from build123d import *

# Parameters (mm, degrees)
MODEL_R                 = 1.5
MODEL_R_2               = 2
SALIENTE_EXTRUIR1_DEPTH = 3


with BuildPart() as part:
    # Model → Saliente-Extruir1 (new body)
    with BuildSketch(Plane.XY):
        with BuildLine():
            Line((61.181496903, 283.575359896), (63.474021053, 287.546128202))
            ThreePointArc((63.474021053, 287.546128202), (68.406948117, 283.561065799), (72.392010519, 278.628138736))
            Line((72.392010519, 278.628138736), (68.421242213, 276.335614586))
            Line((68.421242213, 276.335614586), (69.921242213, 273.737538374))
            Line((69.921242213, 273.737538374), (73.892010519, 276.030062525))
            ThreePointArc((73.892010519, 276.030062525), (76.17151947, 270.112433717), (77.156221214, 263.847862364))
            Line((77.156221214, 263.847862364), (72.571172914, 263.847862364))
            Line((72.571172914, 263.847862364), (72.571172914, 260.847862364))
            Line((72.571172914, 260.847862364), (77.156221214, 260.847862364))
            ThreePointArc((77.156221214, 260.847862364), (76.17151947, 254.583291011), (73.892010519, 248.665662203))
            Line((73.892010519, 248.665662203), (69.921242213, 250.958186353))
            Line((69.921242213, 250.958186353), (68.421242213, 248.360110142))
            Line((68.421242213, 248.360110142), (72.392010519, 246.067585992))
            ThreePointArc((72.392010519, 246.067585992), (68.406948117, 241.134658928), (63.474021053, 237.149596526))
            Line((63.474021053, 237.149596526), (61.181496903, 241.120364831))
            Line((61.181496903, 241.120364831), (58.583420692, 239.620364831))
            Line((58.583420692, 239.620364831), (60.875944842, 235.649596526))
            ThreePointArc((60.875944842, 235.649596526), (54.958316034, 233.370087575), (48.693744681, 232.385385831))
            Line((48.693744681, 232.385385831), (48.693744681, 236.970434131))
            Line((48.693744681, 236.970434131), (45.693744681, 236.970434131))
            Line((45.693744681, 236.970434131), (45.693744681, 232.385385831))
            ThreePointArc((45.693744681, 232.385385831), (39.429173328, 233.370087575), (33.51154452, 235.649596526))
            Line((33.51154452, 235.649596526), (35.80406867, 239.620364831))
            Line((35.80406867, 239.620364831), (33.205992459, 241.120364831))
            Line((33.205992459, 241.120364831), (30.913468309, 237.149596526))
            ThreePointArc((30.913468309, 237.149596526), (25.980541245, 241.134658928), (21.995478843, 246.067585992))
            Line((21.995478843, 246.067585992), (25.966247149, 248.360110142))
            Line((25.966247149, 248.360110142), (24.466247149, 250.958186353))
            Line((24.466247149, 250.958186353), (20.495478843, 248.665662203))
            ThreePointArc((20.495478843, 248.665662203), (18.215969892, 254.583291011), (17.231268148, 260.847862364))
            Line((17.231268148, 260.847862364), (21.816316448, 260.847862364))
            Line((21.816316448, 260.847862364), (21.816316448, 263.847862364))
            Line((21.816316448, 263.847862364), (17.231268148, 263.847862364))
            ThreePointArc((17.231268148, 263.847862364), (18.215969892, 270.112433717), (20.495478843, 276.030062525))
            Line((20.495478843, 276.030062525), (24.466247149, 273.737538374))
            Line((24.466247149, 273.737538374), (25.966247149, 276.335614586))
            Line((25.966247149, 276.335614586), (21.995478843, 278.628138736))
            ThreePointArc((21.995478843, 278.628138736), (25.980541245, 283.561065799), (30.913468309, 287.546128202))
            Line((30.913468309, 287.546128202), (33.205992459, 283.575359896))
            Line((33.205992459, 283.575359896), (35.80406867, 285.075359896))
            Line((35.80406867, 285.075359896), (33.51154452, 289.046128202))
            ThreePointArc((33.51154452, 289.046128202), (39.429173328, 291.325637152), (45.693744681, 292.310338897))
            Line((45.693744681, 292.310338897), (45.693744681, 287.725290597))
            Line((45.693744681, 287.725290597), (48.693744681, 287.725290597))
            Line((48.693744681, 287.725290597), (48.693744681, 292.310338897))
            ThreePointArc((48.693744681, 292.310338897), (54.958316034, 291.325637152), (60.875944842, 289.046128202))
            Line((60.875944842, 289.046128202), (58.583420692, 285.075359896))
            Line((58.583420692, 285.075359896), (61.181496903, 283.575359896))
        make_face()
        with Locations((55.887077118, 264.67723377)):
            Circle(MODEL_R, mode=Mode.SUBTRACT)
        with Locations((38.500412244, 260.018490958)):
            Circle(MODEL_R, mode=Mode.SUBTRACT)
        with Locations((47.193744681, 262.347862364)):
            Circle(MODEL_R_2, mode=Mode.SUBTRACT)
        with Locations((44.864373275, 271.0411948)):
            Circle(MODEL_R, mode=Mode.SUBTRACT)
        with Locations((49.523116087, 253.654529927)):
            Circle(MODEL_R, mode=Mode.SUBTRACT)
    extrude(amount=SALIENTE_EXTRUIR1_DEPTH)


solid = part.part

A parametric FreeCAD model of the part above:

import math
import FreeCAD as App
import Part
import Sketcher
Q = App.Units.Quantity

doc = App.newDocument("Part")
params = doc.addObject("Spreadsheet::Sheet", "Params")
for row, (alias, value) in enumerate([
    ("sketch1_diameter", "3 mm"),
    ("sketch1_diameter2", "4 mm"),
    ("sketch1_radius", "30 mm"),
    ("sketch1_width", "3 mm"),
    ("sketch1_length", "3 mm"),
    ("pad1_length", "3 mm"),
], start=1):
    params.set(f"A{row}", alias)
    params.set(f"B{row}", "=" + value)
    params.setAlias(f"B{row}", alias)

body = doc.addObject("PartDesign::Body", "Body")

# Sketch on XY plane
sketch1 = body.newObject("Sketcher::SketchObject", "Sketch")
sketch1.AttachmentSupport = (doc.getObject("XY_Plane"), [""])
sketch1.MapMode = "FlatFace"
sketch1.addGeometry([
    Part.LineSegment(App.Vector(63.5, 287.5, 0), App.Vector(61.2, 283.6, 0)),  # 0
    Part.LineSegment(App.Vector(61.2, 283.6, 0), App.Vector(58.6, 285.1, 0)),  # 1
    Part.LineSegment(App.Vector(58.6, 285.1, 0), App.Vector(60.9, 289, 0)),  # 2
    Part.ArcOfCircle(Part.Circle(App.Vector(47.2, 262.3, 0), App.Vector(0, 0, 1), 30), math.radians(63), math.radians(87)),  # 3
    Part.LineSegment(App.Vector(48.7, 292.3, 0), App.Vector(48.7, 287.7, 0)),  # 4
    Part.LineSegment(App.Vector(48.7, 287.7, 0), App.Vector(45.7, 287.7, 0)),  # 5
    Part.LineSegment(App.Vector(45.7, 287.7, 0), App.Vector(45.7, 292.3, 0)),  # 6
    Part.ArcOfCircle(Part.Circle(App.Vector(47.2, 262.3, 0), App.Vector(0, 0, 1), 30), math.radians(93), math.radians(117)),  # 7
    Part.LineSegment(App.Vector(33.5, 289, 0), App.Vector(35.8, 285.1, 0)),  # 8
    Part.LineSegment(App.Vector(35.8, 285.1, 0), App.Vector(33.2, 283.6, 0)),  # 9
    Part.LineSegment(App.Vector(33.2, 283.6, 0), App.Vector(30.9, 287.5, 0)),  # 10
    Part.ArcOfCircle(Part.Circle(App.Vector(47.2, 262.3, 0), App.Vector(0, 0, 1), 30), math.radians(123), math.radians(147)),  # 11
    Part.LineSegment(App.Vector(22, 278.6, 0), App.Vector(26, 276.3, 0)),  # 12
    Part.LineSegment(App.Vector(26, 276.3, 0), App.Vector(24.5, 273.7, 0)),  # 13
    Part.LineSegment(App.Vector(24.5, 273.7, 0), App.Vector(20.5, 276, 0)),  # 14
    Part.ArcOfCircle(Part.Circle(App.Vector(47.2, 262.3, 0), App.Vector(0, 0, 1), 30), math.radians(153), math.radians(177)),  # 15
    Part.LineSegment(App.Vector(17.2, 263.8, 0), App.Vector(21.8, 263.8, 0)),  # 16
    Part.LineSegment(App.Vector(21.8, 263.8, 0), App.Vector(21.8, 260.8, 0)),  # 17
    Part.LineSegment(App.Vector(21.8, 260.8, 0), App.Vector(17.2, 260.8, 0)),  # 18
    Part.ArcOfCircle(Part.Circle(App.Vector(47.2, 262.3, 0), App.Vector(0, 0, 1), 30), math.radians(-177), math.radians(-153)),  # 19
    Part.LineSegment(App.Vector(20.5, 248.7, 0), App.Vector(24.5, 251, 0)),  # 20
    Part.LineSegment(App.Vector(24.5, 251, 0), App.Vector(26, 248.4, 0)),  # 21
    Part.LineSegment(App.Vector(26, 248.4, 0), App.Vector(22, 246.1, 0)),  # 22
    Part.ArcOfCircle(Part.Circle(App.Vector(47.2, 262.3, 0), App.Vector(0, 0, 1), 30), math.radians(-147), math.radians(-123)),  # 23
    Part.LineSegment(App.Vector(30.9, 237.1, 0), App.Vector(33.2, 241.1, 0)),  # 24
    Part.LineSegment(App.Vector(33.2, 241.1, 0), App.Vector(35.8, 239.6, 0)),  # 25
    Part.LineSegment(App.Vector(35.8, 239.6, 0), App.Vector(33.5, 235.6, 0)),  # 26
    Part.ArcOfCircle(Part.Circle(App.Vector(47.2, 262.3, 0), App.Vector(0, 0, 1), 30), math.radians(-117), math.radians(-93)),  # 27
    Part.LineSegment(App.Vector(45.7, 232.4, 0), App.Vector(45.7, 237, 0)),  # 28
    Part.LineSegment(App.Vector(45.7, 237, 0), App.Vector(48.7, 237, 0)),  # 29
    Part.LineSegment(App.Vector(48.7, 237, 0), App.Vector(48.7, 232.4, 0)),  # 30
    Part.ArcOfCircle(Part.Circle(App.Vector(47.2, 262.3, 0), App.Vector(0, 0, 1), 30), math.radians(-87), math.radians(-63)),  # 31
    Part.LineSegment(App.Vector(60.9, 235.6, 0), App.Vector(58.6, 239.6, 0)),  # 32
    Part.LineSegment(App.Vector(58.6, 239.6, 0), App.Vector(61.2, 241.1, 0)),  # 33
    Part.LineSegment(App.Vector(61.2, 241.1, 0), App.Vector(63.5, 237.1, 0)),  # 34
    Part.ArcOfCircle(Part.Circle(App.Vector(47.2, 262.3, 0), App.Vector(0, 0, 1), 30), math.radians(-57), math.radians(-33)),  # 35
    Part.LineSegment(App.Vector(72.4, 246.1, 0), App.Vector(68.4, 248.4, 0)),  # 36
    Part.LineSegment(App.Vector(68.4, 248.4, 0), App.Vector(69.9, 251, 0)),  # 37
    Part.LineSegment(App.Vector(69.9, 251, 0), App.Vector(73.9, 248.7, 0)),  # 38
    Part.ArcOfCircle(Part.Circle(App.Vector(47.2, 262.3, 0), App.Vector(0, 0, 1), 30), math.radians(-27), math.radians(-3)),  # 39
    Part.LineSegment(App.Vector(77.2, 260.8, 0), App.Vector(72.6, 260.8, 0)),  # 40
    Part.LineSegment(App.Vector(72.6, 260.8, 0), App.Vector(72.6, 263.8, 0)),  # 41
    Part.LineSegment(App.Vector(72.6, 263.8, 0), App.Vector(77.2, 263.8, 0)),  # 42
    Part.ArcOfCircle(Part.Circle(App.Vector(47.2, 262.3, 0), App.Vector(0, 0, 1), 30), math.radians(3), math.radians(27)),  # 43
    Part.LineSegment(App.Vector(73.9, 276, 0), App.Vector(69.9, 273.7, 0)),  # 44
    Part.LineSegment(App.Vector(69.9, 273.7, 0), App.Vector(68.4, 276.3, 0)),  # 45
    Part.LineSegment(App.Vector(68.4, 276.3, 0), App.Vector(72.4, 278.6, 0)),  # 46
    Part.ArcOfCircle(Part.Circle(App.Vector(47.2, 262.3, 0), App.Vector(0, 0, 1), 30), math.radians(33), math.radians(57)),  # 47
    Part.Circle(App.Vector(49.5, 253.7, 0), App.Vector(0, 0, 1), 1.5),  # 48
    Part.Circle(App.Vector(38.5, 260, 0), App.Vector(0, 0, 1), 1.5),  # 49
    Part.Circle(App.Vector(55.9, 264.7, 0), App.Vector(0, 0, 1), 1.5),  # 50
    Part.Circle(App.Vector(47.2, 262.3, 0), App.Vector(0, 0, 1), 2),  # 51
    Part.Circle(App.Vector(44.9, 271, 0), App.Vector(0, 0, 1), 1.5),  # 52
], False)
sketch1.addConstraint([
    Sketcher.Constraint("Coincident", 0, 2, 1, 1),
    Sketcher.Constraint("Coincident", 1, 2, 2, 1),
    Sketcher.Constraint("Coincident", 2, 2, 3, 1),
    Sketcher.Constraint("Coincident", 3, 2, 4, 1),
    Sketcher.Constraint("Coincident", 4, 2, 5, 1),
    Sketcher.Constraint("Coincident", 5, 2, 6, 1),
    Sketcher.Constraint("Coincident", 6, 2, 7, 1),
    Sketcher.Constraint("Coincident", 7, 2, 8, 1),
    Sketcher.Constraint("Coincident", 8, 2, 9, 1),
    Sketcher.Constraint("Coincident", 9, 2, 10, 1),
    Sketcher.Constraint("Coincident", 10, 2, 11, 1),
    Sketcher.Constraint("Coincident", 11, 2, 12, 1),
    Sketcher.Constraint("Coincident", 12, 2, 13, 1),
    Sketcher.Constraint("Coincident", 13, 2, 14, 1),
    Sketcher.Constraint("Coincident", 14, 2, 15, 1),
    Sketcher.Constraint("Coincident", 15, 2, 16, 1),
    Sketcher.Constraint("Coincident", 16, 2, 17, 1),
    Sketcher.Constraint("Coincident", 17, 2, 18, 1),
    Sketcher.Constraint("Coincident", 18, 2, 19, 1),
    Sketcher.Constraint("Coincident", 19, 2, 20, 1),
    Sketcher.Constraint("Coincident", 20, 2, 21, 1),
    Sketcher.Constraint("Coincident", 21, 2, 22, 1),
    Sketcher.Constraint("Coincident", 22, 2, 23, 1),
    Sketcher.Constraint("Coincident", 23, 2, 24, 1),
    Sketcher.Constraint("Coincident", 24, 2, 25, 1),
    Sketcher.Constraint("Coincident", 25, 2, 26, 1),
    Sketcher.Constraint("Coincident", 26, 2, 27, 1),
    Sketcher.Constraint("Coincident", 27, 2, 28, 1),
    Sketcher.Constraint("Coincident", 28, 2, 29, 1),
    Sketcher.Constraint("Coincident", 29, 2, 30, 1),
    Sketcher.Constraint("Coincident", 30, 2, 31, 1),
    Sketcher.Constraint("Coincident", 31, 2, 32, 1),
    Sketcher.Constraint("Coincident", 32, 2, 33, 1),
    Sketcher.Constraint("Coincident", 33, 2, 34, 1),
    Sketcher.Constraint("Coincident", 34, 2, 35, 1),
    Sketcher.Constraint("Coincident", 35, 2, 36, 1),
    Sketcher.Constraint("Coincident", 36, 2, 37, 1),
    Sketcher.Constraint("Coincident", 37, 2, 38, 1),
    Sketcher.Constraint("Coincident", 38, 2, 39, 1),
    Sketcher.Constraint("Coincident", 39, 2, 40, 1),
    Sketcher.Constraint("Coincident", 40, 2, 41, 1),
    Sketcher.Constraint("Coincident", 41, 2, 42, 1),
    Sketcher.Constraint("Coincident", 42, 2, 43, 1),
    Sketcher.Constraint("Coincident", 43, 2, 44, 1),
    Sketcher.Constraint("Coincident", 44, 2, 45, 1),
    Sketcher.Constraint("Coincident", 45, 2, 46, 1),
    Sketcher.Constraint("Coincident", 46, 2, 47, 1),
    Sketcher.Constraint("Coincident", 47, 2, 0, 1),
    Sketcher.Constraint("Vertical", 4),
    Sketcher.Constraint("Horizontal", 5),
    Sketcher.Constraint("Vertical", 6),
    Sketcher.Constraint("Horizontal", 16),
    Sketcher.Constraint("Vertical", 17),
    Sketcher.Constraint("Horizontal", 18),
    Sketcher.Constraint("Vertical", 28),
    Sketcher.Constraint("Horizontal", 29),
    Sketcher.Constraint("Vertical", 30),
    Sketcher.Constraint("Horizontal", 40),
    Sketcher.Constraint("Vertical", 41),
    Sketcher.Constraint("Horizontal", 42),
    Sketcher.Constraint("Coincident", 7, 3, 3, 3),
    Sketcher.Constraint("Coincident", 11, 3, 3, 3),
    Sketcher.Constraint("Coincident", 15, 3, 3, 3),
    Sketcher.Constraint("Coincident", 19, 3, 3, 3),
    Sketcher.Constraint("Coincident", 23, 3, 3, 3),
    Sketcher.Constraint("Coincident", 27, 3, 3, 3),
    Sketcher.Constraint("Coincident", 31, 3, 3, 3),
    Sketcher.Constraint("Coincident", 35, 3, 3, 3),
    Sketcher.Constraint("Coincident", 39, 3, 3, 3),
    Sketcher.Constraint("Coincident", 43, 3, 3, 3),
    Sketcher.Constraint("Coincident", 47, 3, 3, 3),
    Sketcher.Constraint("Coincident", 51, 3, 3, 3),
    Sketcher.Constraint("Equal", 3, 7),
    Sketcher.Constraint("Equal", 7, 11),
    Sketcher.Constraint("Equal", 11, 15),
    Sketcher.Constraint("Equal", 15, 19),
    Sketcher.Constraint("Equal", 19, 23),
    Sketcher.Constraint("Equal", 23, 27),
    Sketcher.Constraint("Equal", 27, 31),
    Sketcher.Constraint("Equal", 31, 35),
    Sketcher.Constraint("Equal", 35, 39),
    Sketcher.Constraint("Equal", 39, 43),
    Sketcher.Constraint("Equal", 43, 47),
    Sketcher.Constraint("Equal", 48, 49),
    Sketcher.Constraint("Equal", 49, 50),
    Sketcher.Constraint("Equal", 50, 52),
    Sketcher.Constraint("Perpendicular", 0, 1),
    Sketcher.Constraint("Perpendicular", 1, 2),
    Sketcher.Constraint("Perpendicular", 8, 9),
    Sketcher.Constraint("Perpendicular", 9, 10),
    Sketcher.Constraint("Perpendicular", 2, 12),
    Sketcher.Constraint("Perpendicular", 12, 13),
    Sketcher.Constraint("Perpendicular", 13, 14),
    Sketcher.Constraint("Perpendicular", 10, 20),
    Sketcher.Constraint("Perpendicular", 20, 21),
    Sketcher.Constraint("Perpendicular", 21, 22),
    Sketcher.Constraint("Perpendicular", 14, 24),
    Sketcher.Constraint("Perpendicular", 24, 25),
    Sketcher.Constraint("Perpendicular", 25, 26),
    Sketcher.Constraint("Perpendicular", 22, 32),
    Sketcher.Constraint("Perpendicular", 32, 33),
    Sketcher.Constraint("Perpendicular", 33, 34),
    Sketcher.Constraint("Perpendicular", 26, 36),
    Sketcher.Constraint("Perpendicular", 36, 37),
    Sketcher.Constraint("Perpendicular", 37, 38),
    Sketcher.Constraint("Perpendicular", 34, 44),
    Sketcher.Constraint("Perpendicular", 44, 45),
    Sketcher.Constraint("Perpendicular", 45, 46),
    Sketcher.Constraint("Horizontal", 3, 2, 6, 2),
    Sketcher.Constraint("Horizontal", 2, 2, 7, 2),
    Sketcher.Constraint("Horizontal", 1, 2, 8, 2),
    Sketcher.Constraint("Horizontal", 0, 2, 9, 2),
    Sketcher.Constraint("Horizontal", 27, 2, 30, 2),
    Sketcher.Constraint("Horizontal", 26, 2, 31, 2),
    Sketcher.Constraint("Horizontal", 25, 2, 32, 2),
    Sketcher.Constraint("Horizontal", 24, 2, 33, 2),
    Sketcher.Constraint("Horizontal", 23, 2, 34, 2),
    Sketcher.Constraint("Horizontal", 22, 2, 35, 2),
    Sketcher.Constraint("Horizontal", 21, 2, 36, 2),
    Sketcher.Constraint("Horizontal", 20, 2, 37, 2),
    Sketcher.Constraint("Horizontal", 18, 2, 39, 2),
    Sketcher.Constraint("Horizontal", 16, 2, 41, 2),
    Sketcher.Constraint("Horizontal", 14, 2, 43, 2),
    Sketcher.Constraint("Horizontal", 13, 2, 44, 2),
    Sketcher.Constraint("Horizontal", 12, 2, 45, 2),
    Sketcher.Constraint("Vertical", 15, 2, 18, 2),
    Sketcher.Constraint("Vertical", 14, 2, 19, 2),
    Sketcher.Constraint("Vertical", 13, 2, 20, 2),
    Sketcher.Constraint("Vertical", 12, 2, 21, 2),
    Sketcher.Constraint("Vertical", 10, 2, 23, 2),
    Sketcher.Constraint("Vertical", 9, 2, 24, 2),
    Sketcher.Constraint("Vertical", 8, 2, 25, 2),
    Sketcher.Constraint("Vertical", 6, 2, 27, 2),
    Sketcher.Constraint("Equal", 18, 40),
    Sketcher.Constraint("Equal", 42, 4),
    Sketcher.Constraint("Equal", 29, 17),
    Sketcher.Constraint("Equal", 6, 28),
    Sketcher.Constraint("Equal", 0, 2),
    Sketcher.Constraint("Equal", 10, 12),
    Sketcher.Constraint("Equal", 9, 13),
    Sketcher.Constraint("Equal", 12, 14),
    Sketcher.Constraint("Diameter", 48, Q("3 mm")),
    Sketcher.Constraint("Diameter", 51, Q("4 mm")),
    Sketcher.Constraint("Radius", 3, Q("30 mm")),
    Sketcher.Constraint("DistanceX", 5, 2, 5, 1, Q("3 mm")),
    Sketcher.Constraint("Angle", 0, Q("-120 deg")),
    Sketcher.Constraint("Distance", 1, Q("3 mm")),
    Sketcher.Constraint("DistanceX", 16, 1, 16, 2, Q("4.585048 mm")),
    Sketcher.Constraint("Distance", 0, Q("4.585048 mm")),
    Sketcher.Constraint("DistanceY", -1, 1, 48, 3, Q("253.65453 mm")),
    Sketcher.Constraint("DistanceY", -1, 1, 49, 3, Q("260.018491 mm")),
    Sketcher.Constraint("DistanceY", -1, 1, 0, 2, Q("283.57536 mm")),
    Sketcher.Constraint("DistanceX", -1, 1, 1, 2, Q("58.583421 mm")),
    Sketcher.Constraint("DistanceX", -1, 1, 48, 3, Q("49.523116 mm")),
    Sketcher.Constraint("DistanceX", -1, 1, 49, 3, Q("38.500412 mm")),
    Sketcher.Constraint("DistanceX", -1, 1, 50, 3, Q("55.887077 mm")),
    Sketcher.Constraint("DistanceY", -1, 1, 50, 3, Q("264.677234 mm")),
    Sketcher.Constraint("DistanceX", -1, 1, 52, 3, Q("44.864373 mm")),
    Sketcher.Constraint("DistanceY", -1, 1, 52, 3, Q("271.041195 mm")),
])
sketch1.setExpression("Constraints[141]", "Params.sketch1_diameter")
sketch1.setExpression("Constraints[142]", "Params.sketch1_diameter2")
sketch1.setExpression("Constraints[143]", "Params.sketch1_radius")
sketch1.setExpression("Constraints[144]", "Params.sketch1_width")
sketch1.setExpression("Constraints[146]", "Params.sketch1_length")
pad1 = body.newObject("PartDesign::Pad", "Pad")
pad1.Profile = sketch1
pad1.setExpression("Length", "Params.pad1_length")

doc.recompute()
